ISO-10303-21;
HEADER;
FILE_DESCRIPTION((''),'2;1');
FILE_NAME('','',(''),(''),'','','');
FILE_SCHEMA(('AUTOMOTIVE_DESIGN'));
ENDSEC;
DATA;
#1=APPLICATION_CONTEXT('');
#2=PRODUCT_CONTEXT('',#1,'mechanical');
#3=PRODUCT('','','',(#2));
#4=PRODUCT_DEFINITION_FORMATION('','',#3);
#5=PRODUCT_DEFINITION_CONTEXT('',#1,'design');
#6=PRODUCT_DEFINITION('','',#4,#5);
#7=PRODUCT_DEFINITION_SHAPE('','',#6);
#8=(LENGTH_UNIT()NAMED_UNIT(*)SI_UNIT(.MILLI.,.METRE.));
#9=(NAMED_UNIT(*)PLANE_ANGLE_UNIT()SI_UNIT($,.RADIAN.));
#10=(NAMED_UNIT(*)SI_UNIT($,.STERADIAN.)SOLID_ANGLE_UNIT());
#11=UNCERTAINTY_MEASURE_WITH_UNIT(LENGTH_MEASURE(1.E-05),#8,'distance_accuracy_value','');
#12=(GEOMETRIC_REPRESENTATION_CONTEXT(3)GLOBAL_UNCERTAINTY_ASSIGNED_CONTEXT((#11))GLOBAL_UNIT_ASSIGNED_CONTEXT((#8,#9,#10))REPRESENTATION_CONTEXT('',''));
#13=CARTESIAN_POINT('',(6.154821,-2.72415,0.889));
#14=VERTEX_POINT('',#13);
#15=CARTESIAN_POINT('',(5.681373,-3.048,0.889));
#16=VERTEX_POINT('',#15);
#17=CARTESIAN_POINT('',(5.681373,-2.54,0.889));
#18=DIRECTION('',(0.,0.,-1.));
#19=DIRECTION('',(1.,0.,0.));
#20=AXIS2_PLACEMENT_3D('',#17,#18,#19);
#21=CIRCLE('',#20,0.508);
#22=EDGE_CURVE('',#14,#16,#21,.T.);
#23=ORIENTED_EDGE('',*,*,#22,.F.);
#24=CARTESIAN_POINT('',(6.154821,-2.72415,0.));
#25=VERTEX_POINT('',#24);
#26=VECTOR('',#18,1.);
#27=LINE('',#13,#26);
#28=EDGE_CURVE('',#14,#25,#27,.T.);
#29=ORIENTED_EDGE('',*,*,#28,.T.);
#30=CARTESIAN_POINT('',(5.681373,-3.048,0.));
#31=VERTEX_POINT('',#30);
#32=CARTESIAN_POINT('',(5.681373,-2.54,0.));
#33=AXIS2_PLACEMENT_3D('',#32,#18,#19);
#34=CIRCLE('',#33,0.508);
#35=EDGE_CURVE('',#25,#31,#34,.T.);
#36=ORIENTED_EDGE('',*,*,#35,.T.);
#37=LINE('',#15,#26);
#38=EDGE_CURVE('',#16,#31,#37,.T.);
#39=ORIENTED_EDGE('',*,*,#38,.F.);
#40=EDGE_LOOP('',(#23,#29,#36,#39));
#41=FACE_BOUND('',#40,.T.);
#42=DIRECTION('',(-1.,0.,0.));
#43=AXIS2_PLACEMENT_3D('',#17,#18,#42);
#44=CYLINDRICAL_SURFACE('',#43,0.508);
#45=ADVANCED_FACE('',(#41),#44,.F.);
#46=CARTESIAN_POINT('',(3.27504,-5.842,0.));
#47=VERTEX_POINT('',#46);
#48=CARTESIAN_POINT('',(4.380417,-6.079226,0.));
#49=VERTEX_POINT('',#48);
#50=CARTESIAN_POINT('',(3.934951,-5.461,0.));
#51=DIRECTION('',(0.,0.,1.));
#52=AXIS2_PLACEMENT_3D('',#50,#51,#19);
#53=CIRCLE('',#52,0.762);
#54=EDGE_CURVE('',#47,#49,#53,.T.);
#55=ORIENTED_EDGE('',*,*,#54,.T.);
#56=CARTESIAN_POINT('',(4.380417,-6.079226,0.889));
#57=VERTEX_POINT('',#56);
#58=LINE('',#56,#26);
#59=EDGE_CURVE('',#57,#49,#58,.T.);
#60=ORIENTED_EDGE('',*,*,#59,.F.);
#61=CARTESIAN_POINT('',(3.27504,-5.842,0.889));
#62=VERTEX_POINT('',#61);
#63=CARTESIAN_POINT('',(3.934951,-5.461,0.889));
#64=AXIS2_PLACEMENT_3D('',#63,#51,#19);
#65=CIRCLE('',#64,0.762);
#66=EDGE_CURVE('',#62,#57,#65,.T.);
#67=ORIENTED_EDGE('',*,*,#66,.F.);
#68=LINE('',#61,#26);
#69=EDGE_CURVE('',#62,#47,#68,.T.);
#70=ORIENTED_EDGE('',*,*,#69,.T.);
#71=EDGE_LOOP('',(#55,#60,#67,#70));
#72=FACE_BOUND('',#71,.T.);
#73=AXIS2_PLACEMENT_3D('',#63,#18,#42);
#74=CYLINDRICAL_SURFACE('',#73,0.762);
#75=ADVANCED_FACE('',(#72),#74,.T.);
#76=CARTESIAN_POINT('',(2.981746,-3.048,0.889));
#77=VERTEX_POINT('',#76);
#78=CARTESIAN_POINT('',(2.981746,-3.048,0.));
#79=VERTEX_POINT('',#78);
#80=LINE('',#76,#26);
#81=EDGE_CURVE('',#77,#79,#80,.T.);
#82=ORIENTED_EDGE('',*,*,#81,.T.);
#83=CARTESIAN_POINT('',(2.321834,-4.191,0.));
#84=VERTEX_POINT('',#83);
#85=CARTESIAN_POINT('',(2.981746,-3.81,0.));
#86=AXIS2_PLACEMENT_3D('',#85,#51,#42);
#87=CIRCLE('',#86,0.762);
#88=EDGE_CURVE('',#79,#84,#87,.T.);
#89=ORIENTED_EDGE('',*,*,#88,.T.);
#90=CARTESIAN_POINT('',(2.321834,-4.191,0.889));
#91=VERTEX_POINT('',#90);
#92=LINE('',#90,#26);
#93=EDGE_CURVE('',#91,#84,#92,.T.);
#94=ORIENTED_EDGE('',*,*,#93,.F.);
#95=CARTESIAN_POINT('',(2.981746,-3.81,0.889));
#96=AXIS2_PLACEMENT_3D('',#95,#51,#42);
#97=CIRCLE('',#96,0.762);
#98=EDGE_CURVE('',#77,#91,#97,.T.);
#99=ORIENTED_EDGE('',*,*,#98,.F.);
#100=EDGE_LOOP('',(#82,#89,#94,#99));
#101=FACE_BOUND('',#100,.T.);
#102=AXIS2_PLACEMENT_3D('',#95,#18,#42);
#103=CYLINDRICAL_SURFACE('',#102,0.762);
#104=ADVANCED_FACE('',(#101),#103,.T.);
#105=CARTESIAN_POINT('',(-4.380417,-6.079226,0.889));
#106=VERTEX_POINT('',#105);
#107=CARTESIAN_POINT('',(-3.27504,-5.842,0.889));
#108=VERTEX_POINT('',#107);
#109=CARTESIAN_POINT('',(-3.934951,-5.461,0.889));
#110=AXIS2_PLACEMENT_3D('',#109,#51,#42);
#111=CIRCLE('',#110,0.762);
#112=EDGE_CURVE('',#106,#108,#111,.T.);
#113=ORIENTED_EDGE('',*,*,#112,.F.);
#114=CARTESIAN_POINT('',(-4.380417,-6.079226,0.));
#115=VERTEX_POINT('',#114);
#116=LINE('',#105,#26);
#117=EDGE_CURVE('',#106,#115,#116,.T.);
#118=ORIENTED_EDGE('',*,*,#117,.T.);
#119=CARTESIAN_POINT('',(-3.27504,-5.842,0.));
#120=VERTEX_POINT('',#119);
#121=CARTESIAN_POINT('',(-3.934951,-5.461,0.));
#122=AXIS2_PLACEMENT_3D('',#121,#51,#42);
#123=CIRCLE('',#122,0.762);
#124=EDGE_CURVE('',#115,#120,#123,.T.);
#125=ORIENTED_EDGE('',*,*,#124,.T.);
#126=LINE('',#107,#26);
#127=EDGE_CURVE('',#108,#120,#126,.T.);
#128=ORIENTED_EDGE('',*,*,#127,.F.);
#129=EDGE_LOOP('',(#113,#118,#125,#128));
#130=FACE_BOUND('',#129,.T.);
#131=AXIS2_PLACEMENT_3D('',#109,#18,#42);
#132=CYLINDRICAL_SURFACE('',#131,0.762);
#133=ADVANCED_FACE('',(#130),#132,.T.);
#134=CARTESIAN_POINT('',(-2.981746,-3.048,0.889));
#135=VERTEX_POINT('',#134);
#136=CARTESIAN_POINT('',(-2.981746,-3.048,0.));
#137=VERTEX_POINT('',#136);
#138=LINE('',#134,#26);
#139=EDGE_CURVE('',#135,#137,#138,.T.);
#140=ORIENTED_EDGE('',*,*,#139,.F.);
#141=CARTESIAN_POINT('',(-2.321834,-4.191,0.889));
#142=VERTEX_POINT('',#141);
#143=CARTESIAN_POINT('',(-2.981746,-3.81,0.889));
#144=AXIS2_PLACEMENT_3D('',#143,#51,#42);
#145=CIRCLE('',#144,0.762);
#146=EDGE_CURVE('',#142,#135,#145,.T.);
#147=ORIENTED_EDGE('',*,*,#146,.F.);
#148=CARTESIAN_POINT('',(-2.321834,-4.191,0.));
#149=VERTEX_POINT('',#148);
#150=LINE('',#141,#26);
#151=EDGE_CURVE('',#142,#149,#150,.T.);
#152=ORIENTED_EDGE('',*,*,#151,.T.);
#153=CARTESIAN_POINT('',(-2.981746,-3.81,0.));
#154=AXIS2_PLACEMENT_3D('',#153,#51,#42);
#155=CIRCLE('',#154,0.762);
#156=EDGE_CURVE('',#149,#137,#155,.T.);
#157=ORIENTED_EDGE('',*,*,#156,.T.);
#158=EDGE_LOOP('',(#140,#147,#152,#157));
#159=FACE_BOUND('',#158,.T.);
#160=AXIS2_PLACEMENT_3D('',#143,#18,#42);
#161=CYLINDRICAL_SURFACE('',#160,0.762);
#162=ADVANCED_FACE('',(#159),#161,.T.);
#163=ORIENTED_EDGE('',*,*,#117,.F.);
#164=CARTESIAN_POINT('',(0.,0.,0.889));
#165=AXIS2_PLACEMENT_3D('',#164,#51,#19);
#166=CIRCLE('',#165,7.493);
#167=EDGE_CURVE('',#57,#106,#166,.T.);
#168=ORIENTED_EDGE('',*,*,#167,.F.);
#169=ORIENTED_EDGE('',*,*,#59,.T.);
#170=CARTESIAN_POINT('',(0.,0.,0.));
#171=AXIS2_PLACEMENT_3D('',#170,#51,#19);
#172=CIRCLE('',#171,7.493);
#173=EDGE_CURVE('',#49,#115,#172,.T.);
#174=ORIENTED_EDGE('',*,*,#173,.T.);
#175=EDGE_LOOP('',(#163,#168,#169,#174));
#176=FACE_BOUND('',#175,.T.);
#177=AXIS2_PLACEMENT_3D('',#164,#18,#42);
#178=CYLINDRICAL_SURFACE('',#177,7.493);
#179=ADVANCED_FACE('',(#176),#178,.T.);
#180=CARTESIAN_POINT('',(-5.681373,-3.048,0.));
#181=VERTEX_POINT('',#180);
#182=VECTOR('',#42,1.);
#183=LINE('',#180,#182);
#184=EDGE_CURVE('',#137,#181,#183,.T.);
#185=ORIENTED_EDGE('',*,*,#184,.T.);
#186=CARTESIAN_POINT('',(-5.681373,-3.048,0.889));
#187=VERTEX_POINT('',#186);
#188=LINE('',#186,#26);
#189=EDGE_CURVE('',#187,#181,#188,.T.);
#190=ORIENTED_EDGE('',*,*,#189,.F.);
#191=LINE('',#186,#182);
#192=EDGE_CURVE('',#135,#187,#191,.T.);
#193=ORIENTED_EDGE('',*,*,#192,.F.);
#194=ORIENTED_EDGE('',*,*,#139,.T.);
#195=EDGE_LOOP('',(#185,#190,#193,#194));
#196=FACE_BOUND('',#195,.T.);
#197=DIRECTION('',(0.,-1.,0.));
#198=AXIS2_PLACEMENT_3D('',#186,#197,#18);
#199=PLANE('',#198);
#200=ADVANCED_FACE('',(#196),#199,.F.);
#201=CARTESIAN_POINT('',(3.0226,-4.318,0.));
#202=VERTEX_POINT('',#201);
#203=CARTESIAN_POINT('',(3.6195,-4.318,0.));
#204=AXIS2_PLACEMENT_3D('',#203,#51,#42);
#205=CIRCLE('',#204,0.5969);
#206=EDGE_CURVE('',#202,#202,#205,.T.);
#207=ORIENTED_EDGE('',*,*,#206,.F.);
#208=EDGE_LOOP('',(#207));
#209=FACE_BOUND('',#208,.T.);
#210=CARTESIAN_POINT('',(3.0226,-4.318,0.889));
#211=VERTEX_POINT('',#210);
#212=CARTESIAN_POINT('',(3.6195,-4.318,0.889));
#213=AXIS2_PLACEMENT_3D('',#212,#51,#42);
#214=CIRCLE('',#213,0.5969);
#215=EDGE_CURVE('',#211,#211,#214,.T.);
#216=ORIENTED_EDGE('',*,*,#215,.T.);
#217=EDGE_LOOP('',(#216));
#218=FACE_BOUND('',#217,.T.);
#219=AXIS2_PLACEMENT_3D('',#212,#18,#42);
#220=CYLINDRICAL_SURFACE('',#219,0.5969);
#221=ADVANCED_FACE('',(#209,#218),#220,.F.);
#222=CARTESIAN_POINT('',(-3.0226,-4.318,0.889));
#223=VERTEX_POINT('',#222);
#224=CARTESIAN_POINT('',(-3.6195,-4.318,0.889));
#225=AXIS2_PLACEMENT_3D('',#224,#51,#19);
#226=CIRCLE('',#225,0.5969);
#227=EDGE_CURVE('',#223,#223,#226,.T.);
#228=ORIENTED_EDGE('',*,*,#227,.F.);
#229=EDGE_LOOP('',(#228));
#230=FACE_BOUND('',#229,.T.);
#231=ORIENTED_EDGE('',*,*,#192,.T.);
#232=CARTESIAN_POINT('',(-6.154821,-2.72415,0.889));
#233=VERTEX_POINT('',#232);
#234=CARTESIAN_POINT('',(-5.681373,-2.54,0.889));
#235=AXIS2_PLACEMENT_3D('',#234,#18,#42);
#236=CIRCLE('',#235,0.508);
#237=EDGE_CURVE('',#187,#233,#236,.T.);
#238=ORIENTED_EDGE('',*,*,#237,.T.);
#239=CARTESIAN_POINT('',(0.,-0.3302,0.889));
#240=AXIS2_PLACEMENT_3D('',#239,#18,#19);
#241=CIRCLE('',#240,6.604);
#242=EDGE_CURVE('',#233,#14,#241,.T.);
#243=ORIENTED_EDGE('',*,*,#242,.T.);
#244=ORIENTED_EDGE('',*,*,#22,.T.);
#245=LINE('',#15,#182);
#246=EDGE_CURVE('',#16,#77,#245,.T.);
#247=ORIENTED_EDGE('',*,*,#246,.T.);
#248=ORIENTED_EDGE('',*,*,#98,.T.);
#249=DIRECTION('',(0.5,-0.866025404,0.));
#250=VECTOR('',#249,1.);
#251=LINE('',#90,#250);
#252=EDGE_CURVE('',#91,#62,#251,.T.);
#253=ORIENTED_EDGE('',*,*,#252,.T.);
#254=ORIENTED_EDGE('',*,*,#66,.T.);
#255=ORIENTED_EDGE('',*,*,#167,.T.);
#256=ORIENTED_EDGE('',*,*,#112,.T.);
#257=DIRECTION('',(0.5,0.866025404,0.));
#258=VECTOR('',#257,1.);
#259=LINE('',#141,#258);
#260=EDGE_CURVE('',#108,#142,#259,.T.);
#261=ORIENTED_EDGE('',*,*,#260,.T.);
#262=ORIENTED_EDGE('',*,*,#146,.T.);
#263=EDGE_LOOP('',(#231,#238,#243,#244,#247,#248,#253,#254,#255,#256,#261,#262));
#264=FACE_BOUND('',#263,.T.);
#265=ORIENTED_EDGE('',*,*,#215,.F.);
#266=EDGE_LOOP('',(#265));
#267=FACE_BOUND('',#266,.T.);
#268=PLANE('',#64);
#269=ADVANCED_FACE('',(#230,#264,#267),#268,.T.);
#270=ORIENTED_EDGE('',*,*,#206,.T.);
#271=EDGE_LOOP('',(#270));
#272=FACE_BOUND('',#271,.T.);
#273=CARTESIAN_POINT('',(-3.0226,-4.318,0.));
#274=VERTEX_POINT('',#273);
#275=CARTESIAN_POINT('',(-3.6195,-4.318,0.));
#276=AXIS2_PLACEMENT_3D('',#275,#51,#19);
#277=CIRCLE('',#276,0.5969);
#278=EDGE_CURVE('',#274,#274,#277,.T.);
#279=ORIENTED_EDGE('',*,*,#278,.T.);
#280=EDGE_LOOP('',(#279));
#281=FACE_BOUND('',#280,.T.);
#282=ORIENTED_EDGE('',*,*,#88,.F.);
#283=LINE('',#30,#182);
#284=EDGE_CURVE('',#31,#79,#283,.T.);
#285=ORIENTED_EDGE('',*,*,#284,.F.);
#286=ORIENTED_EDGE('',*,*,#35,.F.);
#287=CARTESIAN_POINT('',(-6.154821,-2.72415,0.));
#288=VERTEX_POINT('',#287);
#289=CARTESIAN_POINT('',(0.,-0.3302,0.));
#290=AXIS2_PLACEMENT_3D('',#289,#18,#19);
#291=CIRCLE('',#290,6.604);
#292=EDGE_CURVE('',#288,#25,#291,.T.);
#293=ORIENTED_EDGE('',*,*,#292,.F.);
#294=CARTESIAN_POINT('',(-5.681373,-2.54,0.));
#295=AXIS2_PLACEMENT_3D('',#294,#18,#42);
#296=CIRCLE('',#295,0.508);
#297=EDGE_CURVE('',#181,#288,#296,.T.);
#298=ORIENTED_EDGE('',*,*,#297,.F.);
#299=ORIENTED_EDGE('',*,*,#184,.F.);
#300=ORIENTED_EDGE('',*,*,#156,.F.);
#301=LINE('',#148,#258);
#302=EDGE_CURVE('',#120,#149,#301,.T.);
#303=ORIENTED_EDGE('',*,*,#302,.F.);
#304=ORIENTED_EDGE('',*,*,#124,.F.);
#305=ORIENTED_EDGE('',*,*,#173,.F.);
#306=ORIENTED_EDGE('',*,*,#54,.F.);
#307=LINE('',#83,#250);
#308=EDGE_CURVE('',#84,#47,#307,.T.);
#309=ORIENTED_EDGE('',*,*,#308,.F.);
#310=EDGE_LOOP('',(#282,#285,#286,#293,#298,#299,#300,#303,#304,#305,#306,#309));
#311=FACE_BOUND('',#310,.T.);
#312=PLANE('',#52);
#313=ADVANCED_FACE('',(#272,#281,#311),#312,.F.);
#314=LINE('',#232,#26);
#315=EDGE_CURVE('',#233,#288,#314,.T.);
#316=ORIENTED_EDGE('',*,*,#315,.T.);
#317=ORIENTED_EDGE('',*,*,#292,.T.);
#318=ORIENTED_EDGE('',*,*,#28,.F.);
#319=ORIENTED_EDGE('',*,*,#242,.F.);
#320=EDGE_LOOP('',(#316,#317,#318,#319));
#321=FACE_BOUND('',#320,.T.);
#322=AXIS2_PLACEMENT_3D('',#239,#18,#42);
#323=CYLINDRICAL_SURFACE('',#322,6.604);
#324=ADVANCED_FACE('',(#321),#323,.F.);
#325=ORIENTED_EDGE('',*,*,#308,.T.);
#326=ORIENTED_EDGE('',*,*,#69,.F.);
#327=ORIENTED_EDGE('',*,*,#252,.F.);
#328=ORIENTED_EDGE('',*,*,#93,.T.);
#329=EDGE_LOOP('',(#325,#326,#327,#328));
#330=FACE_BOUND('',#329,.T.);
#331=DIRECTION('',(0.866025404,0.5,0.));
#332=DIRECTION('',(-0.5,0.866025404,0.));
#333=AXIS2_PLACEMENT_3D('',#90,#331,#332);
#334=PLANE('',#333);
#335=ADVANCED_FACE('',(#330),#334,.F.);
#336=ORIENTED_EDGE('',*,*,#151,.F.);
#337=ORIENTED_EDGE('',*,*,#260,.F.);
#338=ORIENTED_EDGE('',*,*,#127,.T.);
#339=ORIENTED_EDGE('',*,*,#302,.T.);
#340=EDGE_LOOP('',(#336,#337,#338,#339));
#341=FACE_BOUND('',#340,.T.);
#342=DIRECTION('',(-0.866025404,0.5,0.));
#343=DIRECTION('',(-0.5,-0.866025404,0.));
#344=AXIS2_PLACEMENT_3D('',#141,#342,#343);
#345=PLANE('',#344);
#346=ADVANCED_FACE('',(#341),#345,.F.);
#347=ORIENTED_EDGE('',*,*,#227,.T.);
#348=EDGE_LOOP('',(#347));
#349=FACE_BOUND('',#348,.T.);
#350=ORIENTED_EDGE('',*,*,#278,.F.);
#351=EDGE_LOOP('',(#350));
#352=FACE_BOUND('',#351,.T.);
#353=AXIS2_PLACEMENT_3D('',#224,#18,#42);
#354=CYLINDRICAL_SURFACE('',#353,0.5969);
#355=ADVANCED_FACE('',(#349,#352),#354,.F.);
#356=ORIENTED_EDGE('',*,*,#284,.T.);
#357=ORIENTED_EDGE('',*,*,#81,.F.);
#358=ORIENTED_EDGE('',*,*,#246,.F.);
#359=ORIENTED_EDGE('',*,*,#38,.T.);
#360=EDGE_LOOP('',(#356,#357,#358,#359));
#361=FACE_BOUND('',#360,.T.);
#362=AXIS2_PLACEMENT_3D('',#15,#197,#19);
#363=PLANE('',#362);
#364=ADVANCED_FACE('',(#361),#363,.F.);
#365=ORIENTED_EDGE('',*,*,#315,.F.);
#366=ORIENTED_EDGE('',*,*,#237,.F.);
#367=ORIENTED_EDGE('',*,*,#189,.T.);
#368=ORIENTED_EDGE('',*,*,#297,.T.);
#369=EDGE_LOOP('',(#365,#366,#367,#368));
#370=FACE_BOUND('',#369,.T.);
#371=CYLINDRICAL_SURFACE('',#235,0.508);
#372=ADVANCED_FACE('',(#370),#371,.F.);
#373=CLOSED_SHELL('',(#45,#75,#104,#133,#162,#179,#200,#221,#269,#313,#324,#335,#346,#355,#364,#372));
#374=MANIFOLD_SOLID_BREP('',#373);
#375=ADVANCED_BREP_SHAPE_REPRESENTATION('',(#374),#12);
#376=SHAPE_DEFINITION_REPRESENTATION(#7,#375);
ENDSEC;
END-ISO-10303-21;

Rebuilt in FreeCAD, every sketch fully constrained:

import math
import FreeCAD as App
import Part
import Sketcher
from FreeCAD import Vector
Q = App.Units.Quantity

doc = App.newDocument("Part")
body = doc.addObject("PartDesign::Body", "Body")

# Sketch on XY plane
sketch1 = doc.addObject("Sketcher::SketchObject", "Sketch")
body.addObject(sketch1)
sketch1.AttachmentSupport = (doc.XY_Plane, [""])
sketch1.MapMode = "FlatFace"
sketch1.addGeometry([
    Part.LineSegment(Vector(-3, -3, 0), Vector(-5.7, -3, 0)),  # 0
    Part.ArcOfCircle(Part.Circle(Vector(-5.7, -2.5, 0), Vector(0, 0, 1), 0.5), math.radians(-159), math.radians(-90)),  # 1
    Part.ArcOfCircle(Part.Circle(Vector(0, -0.3, 0), Vector(0, 0, 1), 6.6), math.radians(-21), math.radians(201)),  # 2
    Part.ArcOfCircle(Part.Circle(Vector(5.7, -2.5, 0), Vector(0, 0, 1), 0.5), math.radians(-90), math.radians(-21)),  # 3
    Part.LineSegment(Vector(5.7, -3, 0), Vector(3, -3, 0)),  # 4
    Part.ArcOfCircle(Part.Circle(Vector(3, -3.8, 0), Vector(0, 0, 1), 0.8), math.radians(90), math.radians(210)),  # 5
    Part.LineSegment(Vector(2.3, -4.2, 0), Vector(3.3, -5.8, 0)),  # 6
    Part.ArcOfCircle(Part.Circle(Vector(3.9, -5.5, 0), Vector(0, 0, 1), 0.8), math.radians(-150), math.radians(-54)),  # 7
    Part.ArcOfCircle(Part.Circle(Vector(0, 0, 0), Vector(0, 0, 1), 7.5), math.radians(-54), math.radians(234)),  # 8
    Part.ArcOfCircle(Part.Circle(Vector(-3.9, -5.5, 0), Vector(0, 0, 1), 0.8), math.radians(-126), math.radians(-30)),  # 9
    Part.LineSegment(Vector(-3.3, -5.8, 0), Vector(-2.3, -4.2, 0)),  # 10
    Part.ArcOfCircle(Part.Circle(Vector(-3, -3.8, 0), Vector(0, 0, 1), 0.8), math.radians(-30), math.radians(90)),  # 11
    Part.Circle(Vector(3.6, -4.3, 0), Vector(0, 0, 1), 0.6),  # 12
    Part.Circle(Vector(-3.6, -4.3, 0), Vector(0, 0, 1), 0.6),  # 13
], False)
sketch1.addConstraint([
    Sketcher.Constraint("Tangent", 0, 2, 1, 2),
    Sketcher.Constraint("Tangent", 1, 1, 2, 2),
    Sketcher.Constraint("Tangent", 2, 1, 3, 2),
    Sketcher.Constraint("Tangent", 3, 1, 4, 1),
    Sketcher.Constraint("Tangent", 4, 2, 5, 1),
    Sketcher.Constraint("Tangent", 5, 2, 6, 1),
    Sketcher.Constraint("Tangent", 6, 2, 7, 1),
    Sketcher.Constraint("Tangent", 7, 2, 8, 1),
    Sketcher.Constraint("Tangent", 8, 2, 9, 1),
    Sketcher.Constraint("Tangent", 9, 2, 10, 1),
    Sketcher.Constraint("Tangent", 10, 2, 11, 1),
    Sketcher.Constraint("Tangent", 11, 2, 0, 1),
    Sketcher.Constraint("Horizontal", 0),
    Sketcher.Constraint("Horizontal", 4),
    Sketcher.Constraint("Coincident", 8, 3, -1, 1),
    Sketcher.Constraint("Equal", 1, 3),
    Sketcher.Constraint("Equal", 5, 7),
    Sketcher.Constraint("Equal", 7, 9),
    Sketcher.Constraint("Equal", 9, 11),
    Sketcher.Constraint("Equal", 12, 13),
    Sketcher.Constraint("Symmetric", 1, 3, 3, 3, -2),
    Sketcher.Constraint("Symmetric", 12, 3, 13, 3, -2),
    Sketcher.Constraint("Symmetric", 6, 2, 9, 2, -2),
    Sketcher.Constraint("Radius", 1, Q("0.02 in")),
    Sketcher.Constraint("Radius", 2, Q("0.26 in")),
    Sketcher.Constraint("Radius", 5, Q("0.03 in")),
    Sketcher.Constraint("Diameter", 12, Q("0.047 in")),
    Sketcher.Constraint("Angle", 6, Q("-60 deg")),
    Sketcher.Constraint("Radius", 8, Q("0.295 in")),
    Sketcher.Constraint("DistanceY", 1, 3, -1, 1, Q("0.1 in")),
    Sketcher.Constraint("DistanceY", 12, 3, -1, 1, Q("0.17 in")),
    Sketcher.Constraint("DistanceY", 6, 2, -1, 1, Q("0.23 in")),
    Sketcher.Constraint("DistanceY", 2, 3, -1, 1, Q("0.013 in")),
    Sketcher.Constraint("DistanceX", -1, 1, 12, 3, Q("0.1425 in")),
])
pad1 = doc.addObject("PartDesign::Pad", "Pad")
body.addObject(pad1)
pad1.Profile = sketch1
pad1.Length = Q("0.035 in")

doc.recompute()
